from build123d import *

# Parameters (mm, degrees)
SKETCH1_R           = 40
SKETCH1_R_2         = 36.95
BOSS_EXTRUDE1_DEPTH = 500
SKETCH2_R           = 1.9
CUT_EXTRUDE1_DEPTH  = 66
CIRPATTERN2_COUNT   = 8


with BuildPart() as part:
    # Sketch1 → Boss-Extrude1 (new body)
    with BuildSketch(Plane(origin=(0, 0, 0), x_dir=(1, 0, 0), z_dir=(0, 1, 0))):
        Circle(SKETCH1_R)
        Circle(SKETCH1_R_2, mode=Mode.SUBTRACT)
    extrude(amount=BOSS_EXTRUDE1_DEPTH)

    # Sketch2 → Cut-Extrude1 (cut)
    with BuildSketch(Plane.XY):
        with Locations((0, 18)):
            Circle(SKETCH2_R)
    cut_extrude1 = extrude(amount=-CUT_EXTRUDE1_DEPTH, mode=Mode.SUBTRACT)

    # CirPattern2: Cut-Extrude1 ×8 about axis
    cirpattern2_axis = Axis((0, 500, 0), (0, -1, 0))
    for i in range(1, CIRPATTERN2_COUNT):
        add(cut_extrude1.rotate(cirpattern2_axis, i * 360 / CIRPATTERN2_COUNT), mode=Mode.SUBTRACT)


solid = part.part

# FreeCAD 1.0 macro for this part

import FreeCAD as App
import Part
import Sketcher
from FreeCAD import Vector
Q = App.Units.Quantity

doc = App.newDocument("Part")
body = doc.addObject("PartDesign::Body", "Body")

# Sketch on XZ plane
sketch1 = body.newObject("Sketcher::SketchObject", "Sketch")
sketch1.AttachmentSupport = (doc.getObject("XZ_Plane"), [""])
sketch1.MapMode = "FlatFace"
sketch1.addGeometry([
    Part.Circle(Vector(0, 0, 0), Vector(0, 0, 1), 40),
    Part.Circle(Vector(0, 0, 0), Vector(0, 0, 1), 37),
], False)
sketch1.addConstraint([
    Sketcher.Constraint("Coincident", 0, 3, -1, 1),
    Sketcher.Constraint("Coincident", 1, 3, -1, 1),
    Sketcher.Constraint("Diameter", 0, Q("80 mm")),
    Sketcher.Constraint("Diameter", 1, Q("73.9 mm")),
])
pad1 = body.newObject("PartDesign::Pad", "Pad")
pad1.Profile = sketch1
pad1.Length = 500
pad1.Reversed = True

# Sketch on XY plane
sketch2 = body.newObject("Sketcher::SketchObject", "Sketch001")
sketch2.AttachmentSupport = (doc.getObject("XY_Plane"), [""])
sketch2.MapMode = "FlatFace"
sketch2.addGeometry(Part.Circle(Vector(0, 18, 0), Vector(0, 0, 1), 1.9), False)
sketch2.addConstraint([
    Sketcher.Constraint("PointOnObject", 0, 3, -2),
    Sketcher.Constraint("Diameter", 0, Q("3.8 mm")),
    Sketcher.Constraint("DistanceY", -1, 1, 0, 3, Q("18 mm")),
])
pocket1 = body.newObject("PartDesign::Pocket", "Pocket")
pocket1.Profile = sketch2
pocket1.Length = 66
doc.recompute()

polarpattern = body.newObject("PartDesign::PolarPattern", "PolarPattern")
polarpattern.Originals = [pocket1]
polarpattern.Axis = (doc.getObject("Y_Axis"), [""])
polarpattern.Angle = 360
polarpattern.Occurrences = 8
body.Tip = polarpattern

doc.recompute()
